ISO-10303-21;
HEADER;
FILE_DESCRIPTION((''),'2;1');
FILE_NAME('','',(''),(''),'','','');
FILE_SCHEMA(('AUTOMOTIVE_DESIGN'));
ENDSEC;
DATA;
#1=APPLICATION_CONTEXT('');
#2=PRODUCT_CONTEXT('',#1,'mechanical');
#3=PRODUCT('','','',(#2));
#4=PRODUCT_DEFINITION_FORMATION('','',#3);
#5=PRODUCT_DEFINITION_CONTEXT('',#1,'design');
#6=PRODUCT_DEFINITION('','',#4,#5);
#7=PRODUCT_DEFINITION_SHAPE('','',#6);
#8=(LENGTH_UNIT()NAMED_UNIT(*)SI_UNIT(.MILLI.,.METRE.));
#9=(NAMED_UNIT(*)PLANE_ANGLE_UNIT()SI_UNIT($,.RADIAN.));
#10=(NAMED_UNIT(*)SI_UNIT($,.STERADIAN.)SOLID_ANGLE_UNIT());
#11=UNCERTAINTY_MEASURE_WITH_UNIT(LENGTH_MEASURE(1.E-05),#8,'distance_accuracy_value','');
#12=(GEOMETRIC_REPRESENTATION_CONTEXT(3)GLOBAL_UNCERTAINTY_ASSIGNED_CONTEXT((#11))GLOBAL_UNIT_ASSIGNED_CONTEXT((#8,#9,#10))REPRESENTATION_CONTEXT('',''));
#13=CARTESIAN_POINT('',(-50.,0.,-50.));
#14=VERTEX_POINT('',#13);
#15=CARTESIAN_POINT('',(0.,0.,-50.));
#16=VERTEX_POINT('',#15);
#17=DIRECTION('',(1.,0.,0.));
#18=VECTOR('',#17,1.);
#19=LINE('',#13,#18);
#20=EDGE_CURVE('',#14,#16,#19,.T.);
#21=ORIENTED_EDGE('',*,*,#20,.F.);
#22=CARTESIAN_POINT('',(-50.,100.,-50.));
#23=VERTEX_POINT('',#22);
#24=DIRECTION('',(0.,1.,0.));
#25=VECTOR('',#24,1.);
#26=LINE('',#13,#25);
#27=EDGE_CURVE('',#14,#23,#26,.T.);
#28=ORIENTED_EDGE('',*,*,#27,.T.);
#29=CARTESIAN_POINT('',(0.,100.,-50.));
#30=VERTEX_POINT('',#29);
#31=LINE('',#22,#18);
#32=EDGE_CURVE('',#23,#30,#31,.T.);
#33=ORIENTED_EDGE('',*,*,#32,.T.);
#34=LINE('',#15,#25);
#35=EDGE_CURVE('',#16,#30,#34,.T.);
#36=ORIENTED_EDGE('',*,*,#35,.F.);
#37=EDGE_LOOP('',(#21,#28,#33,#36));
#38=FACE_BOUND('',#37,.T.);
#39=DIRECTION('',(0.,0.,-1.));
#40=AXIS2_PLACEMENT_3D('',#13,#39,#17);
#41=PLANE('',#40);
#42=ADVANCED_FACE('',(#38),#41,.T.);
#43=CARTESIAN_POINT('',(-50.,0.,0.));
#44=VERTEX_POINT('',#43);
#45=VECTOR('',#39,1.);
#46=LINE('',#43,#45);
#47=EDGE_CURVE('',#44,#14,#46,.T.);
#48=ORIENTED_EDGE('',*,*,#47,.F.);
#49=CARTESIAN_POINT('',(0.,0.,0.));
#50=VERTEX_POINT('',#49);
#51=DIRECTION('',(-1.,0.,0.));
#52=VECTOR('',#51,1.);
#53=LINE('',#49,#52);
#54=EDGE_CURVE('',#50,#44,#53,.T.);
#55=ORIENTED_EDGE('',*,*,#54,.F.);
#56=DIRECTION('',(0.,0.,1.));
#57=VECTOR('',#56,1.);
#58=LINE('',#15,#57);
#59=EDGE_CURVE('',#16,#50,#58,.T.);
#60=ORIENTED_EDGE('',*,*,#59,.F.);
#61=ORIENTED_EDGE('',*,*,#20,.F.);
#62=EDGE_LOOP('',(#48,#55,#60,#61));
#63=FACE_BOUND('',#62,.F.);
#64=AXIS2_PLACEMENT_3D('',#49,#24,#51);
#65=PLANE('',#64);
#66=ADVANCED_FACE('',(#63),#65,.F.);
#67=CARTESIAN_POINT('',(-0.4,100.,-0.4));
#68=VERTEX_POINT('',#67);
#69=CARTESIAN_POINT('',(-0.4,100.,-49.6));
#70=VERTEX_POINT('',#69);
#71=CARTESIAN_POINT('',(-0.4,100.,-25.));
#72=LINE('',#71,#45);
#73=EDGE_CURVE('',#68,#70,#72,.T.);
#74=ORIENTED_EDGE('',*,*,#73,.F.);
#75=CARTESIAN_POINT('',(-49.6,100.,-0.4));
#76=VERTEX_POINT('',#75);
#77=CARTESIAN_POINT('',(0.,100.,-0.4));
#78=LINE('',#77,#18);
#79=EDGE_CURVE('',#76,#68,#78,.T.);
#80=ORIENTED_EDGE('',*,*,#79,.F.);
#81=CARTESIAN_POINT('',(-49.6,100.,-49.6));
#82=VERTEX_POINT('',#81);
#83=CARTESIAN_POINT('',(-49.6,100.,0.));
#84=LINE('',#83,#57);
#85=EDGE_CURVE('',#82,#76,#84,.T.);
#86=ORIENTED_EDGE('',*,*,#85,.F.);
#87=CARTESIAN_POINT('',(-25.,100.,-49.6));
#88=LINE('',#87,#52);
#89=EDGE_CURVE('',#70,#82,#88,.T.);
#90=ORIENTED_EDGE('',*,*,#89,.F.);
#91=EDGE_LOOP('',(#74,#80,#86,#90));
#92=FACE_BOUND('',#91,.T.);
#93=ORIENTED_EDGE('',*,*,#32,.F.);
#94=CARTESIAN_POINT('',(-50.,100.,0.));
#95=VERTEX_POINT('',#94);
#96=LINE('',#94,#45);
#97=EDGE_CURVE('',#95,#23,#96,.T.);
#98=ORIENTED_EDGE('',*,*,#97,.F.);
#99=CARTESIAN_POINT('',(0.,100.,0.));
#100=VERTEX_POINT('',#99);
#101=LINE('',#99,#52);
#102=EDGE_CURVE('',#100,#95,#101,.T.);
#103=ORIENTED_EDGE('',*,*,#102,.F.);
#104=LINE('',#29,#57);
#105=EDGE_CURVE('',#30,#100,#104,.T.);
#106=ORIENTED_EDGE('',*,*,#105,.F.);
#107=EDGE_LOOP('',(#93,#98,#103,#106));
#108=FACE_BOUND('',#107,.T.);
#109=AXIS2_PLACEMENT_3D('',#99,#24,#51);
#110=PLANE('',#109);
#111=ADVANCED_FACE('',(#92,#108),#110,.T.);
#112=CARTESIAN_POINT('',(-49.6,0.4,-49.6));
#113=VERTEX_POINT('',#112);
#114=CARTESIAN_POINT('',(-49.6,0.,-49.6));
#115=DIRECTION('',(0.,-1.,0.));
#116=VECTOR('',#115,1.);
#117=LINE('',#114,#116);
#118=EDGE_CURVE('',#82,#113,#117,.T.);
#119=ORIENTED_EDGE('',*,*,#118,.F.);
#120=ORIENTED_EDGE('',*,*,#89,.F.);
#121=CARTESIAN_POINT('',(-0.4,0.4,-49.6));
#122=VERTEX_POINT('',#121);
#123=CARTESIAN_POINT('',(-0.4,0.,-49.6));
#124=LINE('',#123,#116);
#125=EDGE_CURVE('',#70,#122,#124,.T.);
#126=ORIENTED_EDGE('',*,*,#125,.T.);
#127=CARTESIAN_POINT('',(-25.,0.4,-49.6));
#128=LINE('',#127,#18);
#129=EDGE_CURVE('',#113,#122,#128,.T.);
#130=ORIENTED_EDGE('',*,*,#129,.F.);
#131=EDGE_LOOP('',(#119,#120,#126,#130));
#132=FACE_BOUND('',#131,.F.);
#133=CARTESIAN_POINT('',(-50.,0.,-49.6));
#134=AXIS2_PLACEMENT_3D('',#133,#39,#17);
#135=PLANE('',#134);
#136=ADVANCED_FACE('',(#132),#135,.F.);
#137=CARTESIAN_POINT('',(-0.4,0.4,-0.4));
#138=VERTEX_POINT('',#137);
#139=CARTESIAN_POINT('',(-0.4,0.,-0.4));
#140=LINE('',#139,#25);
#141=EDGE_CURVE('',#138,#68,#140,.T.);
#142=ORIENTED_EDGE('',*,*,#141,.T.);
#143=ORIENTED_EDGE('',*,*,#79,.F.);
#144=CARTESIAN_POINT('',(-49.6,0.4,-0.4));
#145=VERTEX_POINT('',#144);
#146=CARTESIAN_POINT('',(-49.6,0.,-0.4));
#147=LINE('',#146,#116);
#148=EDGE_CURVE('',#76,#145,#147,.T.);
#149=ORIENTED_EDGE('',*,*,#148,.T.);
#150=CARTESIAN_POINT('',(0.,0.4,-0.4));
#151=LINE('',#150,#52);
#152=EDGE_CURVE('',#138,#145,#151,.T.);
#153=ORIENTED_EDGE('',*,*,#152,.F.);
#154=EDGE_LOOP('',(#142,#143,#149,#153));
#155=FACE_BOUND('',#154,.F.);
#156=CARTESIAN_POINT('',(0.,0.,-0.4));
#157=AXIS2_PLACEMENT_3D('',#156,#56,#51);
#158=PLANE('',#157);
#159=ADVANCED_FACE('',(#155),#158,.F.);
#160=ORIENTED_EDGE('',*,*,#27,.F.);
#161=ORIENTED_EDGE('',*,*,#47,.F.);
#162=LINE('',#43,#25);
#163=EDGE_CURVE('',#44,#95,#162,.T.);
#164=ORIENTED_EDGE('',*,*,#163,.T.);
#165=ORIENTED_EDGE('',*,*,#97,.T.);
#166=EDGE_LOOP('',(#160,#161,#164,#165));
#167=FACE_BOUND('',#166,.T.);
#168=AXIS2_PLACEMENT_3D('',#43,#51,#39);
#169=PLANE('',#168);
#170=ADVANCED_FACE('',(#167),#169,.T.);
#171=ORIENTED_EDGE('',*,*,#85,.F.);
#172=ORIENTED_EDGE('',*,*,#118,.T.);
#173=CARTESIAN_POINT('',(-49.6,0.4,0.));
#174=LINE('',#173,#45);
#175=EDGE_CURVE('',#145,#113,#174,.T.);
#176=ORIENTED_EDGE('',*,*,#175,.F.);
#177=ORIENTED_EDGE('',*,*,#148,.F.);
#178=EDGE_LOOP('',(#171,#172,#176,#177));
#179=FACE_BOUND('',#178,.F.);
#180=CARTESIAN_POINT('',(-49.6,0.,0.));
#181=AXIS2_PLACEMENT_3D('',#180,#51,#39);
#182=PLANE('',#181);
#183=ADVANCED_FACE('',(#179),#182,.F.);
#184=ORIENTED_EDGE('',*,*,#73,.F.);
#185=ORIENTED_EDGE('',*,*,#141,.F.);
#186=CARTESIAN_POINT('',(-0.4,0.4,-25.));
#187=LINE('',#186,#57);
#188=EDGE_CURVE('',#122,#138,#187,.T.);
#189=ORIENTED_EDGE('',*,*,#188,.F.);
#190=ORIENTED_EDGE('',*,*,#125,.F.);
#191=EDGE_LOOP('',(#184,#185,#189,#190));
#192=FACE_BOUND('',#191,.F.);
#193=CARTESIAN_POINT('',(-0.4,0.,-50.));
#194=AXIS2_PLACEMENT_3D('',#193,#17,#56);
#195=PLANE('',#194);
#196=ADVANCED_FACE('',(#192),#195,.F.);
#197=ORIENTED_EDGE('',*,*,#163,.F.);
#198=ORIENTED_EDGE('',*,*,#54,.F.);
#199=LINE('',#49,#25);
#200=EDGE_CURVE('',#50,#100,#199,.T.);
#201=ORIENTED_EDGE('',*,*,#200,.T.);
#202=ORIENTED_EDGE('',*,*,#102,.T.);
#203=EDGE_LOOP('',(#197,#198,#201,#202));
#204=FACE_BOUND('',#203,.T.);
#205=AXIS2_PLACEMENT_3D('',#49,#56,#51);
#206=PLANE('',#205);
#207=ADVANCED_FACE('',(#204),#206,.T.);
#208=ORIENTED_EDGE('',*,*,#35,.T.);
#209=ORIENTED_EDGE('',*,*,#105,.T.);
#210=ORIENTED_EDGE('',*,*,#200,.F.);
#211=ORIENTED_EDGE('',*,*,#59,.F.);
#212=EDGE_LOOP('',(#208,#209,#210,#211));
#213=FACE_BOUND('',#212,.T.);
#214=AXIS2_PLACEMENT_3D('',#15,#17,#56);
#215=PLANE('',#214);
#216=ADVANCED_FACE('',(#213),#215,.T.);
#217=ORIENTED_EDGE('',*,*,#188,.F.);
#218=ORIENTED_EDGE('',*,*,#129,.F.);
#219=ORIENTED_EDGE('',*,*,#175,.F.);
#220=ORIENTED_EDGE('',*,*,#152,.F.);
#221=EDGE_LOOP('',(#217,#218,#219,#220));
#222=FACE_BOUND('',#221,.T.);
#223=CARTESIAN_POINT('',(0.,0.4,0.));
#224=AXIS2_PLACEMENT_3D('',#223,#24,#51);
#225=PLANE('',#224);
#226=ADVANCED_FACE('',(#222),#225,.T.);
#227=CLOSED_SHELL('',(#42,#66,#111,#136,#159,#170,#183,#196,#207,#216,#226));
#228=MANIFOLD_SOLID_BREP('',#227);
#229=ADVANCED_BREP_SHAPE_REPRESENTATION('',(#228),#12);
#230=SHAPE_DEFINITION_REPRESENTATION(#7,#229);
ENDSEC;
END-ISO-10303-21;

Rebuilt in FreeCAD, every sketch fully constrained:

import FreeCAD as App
import Part
import Sketcher
from FreeCAD import Vector


def faces_at(feature, points):
    """Names of the faces that lie closest to the given points."""
    faces = feature.Shape.Faces
    near = lambda p: min(range(len(faces)), key=lambda i: faces[i].distToShape(Part.Vertex(*p))[0])
    return sorted({f"Face{near(p) + 1}" for p in points})


def add_polygon(sketch, points):
    """Adds a closed chain of lines whose ends are joined by coincident constraints."""
    first, n = sketch.GeometryCount, len(points)
    for a, b in zip(points, points[1:] + points[:1]):
        sketch.addGeometry(Part.LineSegment(App.Vector(*a, 0), App.Vector(*b, 0)), False)
    for i in range(n):
        sketch.addConstraint(Sketcher.Constraint("Coincident", first + i, 2, first + (i + 1) % n, 1))

doc = App.newDocument("Part")
body = doc.addObject("PartDesign::Body", "Body")

sketch1 = body.newObject("Sketcher::SketchObject", "Sketch")
sketch1.AttachmentSupport = (doc.getObject("XZ_Plane"), [""])
sketch1.MapMode = "FlatFace"
add_polygon(sketch1, [(-50, 0), (0, 0), (0, -50), (-50, -50)])
sketch1.addConstraint(Sketcher.Constraint("Horizontal", 0))
sketch1.addConstraint(Sketcher.Constraint("Vertical", 1))
sketch1.addConstraint(Sketcher.Constraint("Horizontal", 2))
sketch1.addConstraint(Sketcher.Constraint("Vertical", 3))
sketch1.addConstraint(Sketcher.Constraint("Coincident", 0, 2, -1, 1))
sketch1.addConstraint(Sketcher.Constraint("Equal", 2, 1))
sketch1.addConstraint(Sketcher.Constraint("DistanceX", 0, 1, 0, 2, 50.0))
pad1 = body.newObject("PartDesign::Pad", "Pad")
pad1.Profile = sketch1
pad1.Length = 100
pad1.Reversed = True
doc.recompute()

thickness = body.newObject("PartDesign::Thickness", "Thickness")
thickness.Base = (pad1, faces_at(pad1, [(-16.667, 100, -16.667)]))
thickness.Value = 0.4
thickness.Reversed = True
thickness.Join = "Intersection"

doc.recompute()
